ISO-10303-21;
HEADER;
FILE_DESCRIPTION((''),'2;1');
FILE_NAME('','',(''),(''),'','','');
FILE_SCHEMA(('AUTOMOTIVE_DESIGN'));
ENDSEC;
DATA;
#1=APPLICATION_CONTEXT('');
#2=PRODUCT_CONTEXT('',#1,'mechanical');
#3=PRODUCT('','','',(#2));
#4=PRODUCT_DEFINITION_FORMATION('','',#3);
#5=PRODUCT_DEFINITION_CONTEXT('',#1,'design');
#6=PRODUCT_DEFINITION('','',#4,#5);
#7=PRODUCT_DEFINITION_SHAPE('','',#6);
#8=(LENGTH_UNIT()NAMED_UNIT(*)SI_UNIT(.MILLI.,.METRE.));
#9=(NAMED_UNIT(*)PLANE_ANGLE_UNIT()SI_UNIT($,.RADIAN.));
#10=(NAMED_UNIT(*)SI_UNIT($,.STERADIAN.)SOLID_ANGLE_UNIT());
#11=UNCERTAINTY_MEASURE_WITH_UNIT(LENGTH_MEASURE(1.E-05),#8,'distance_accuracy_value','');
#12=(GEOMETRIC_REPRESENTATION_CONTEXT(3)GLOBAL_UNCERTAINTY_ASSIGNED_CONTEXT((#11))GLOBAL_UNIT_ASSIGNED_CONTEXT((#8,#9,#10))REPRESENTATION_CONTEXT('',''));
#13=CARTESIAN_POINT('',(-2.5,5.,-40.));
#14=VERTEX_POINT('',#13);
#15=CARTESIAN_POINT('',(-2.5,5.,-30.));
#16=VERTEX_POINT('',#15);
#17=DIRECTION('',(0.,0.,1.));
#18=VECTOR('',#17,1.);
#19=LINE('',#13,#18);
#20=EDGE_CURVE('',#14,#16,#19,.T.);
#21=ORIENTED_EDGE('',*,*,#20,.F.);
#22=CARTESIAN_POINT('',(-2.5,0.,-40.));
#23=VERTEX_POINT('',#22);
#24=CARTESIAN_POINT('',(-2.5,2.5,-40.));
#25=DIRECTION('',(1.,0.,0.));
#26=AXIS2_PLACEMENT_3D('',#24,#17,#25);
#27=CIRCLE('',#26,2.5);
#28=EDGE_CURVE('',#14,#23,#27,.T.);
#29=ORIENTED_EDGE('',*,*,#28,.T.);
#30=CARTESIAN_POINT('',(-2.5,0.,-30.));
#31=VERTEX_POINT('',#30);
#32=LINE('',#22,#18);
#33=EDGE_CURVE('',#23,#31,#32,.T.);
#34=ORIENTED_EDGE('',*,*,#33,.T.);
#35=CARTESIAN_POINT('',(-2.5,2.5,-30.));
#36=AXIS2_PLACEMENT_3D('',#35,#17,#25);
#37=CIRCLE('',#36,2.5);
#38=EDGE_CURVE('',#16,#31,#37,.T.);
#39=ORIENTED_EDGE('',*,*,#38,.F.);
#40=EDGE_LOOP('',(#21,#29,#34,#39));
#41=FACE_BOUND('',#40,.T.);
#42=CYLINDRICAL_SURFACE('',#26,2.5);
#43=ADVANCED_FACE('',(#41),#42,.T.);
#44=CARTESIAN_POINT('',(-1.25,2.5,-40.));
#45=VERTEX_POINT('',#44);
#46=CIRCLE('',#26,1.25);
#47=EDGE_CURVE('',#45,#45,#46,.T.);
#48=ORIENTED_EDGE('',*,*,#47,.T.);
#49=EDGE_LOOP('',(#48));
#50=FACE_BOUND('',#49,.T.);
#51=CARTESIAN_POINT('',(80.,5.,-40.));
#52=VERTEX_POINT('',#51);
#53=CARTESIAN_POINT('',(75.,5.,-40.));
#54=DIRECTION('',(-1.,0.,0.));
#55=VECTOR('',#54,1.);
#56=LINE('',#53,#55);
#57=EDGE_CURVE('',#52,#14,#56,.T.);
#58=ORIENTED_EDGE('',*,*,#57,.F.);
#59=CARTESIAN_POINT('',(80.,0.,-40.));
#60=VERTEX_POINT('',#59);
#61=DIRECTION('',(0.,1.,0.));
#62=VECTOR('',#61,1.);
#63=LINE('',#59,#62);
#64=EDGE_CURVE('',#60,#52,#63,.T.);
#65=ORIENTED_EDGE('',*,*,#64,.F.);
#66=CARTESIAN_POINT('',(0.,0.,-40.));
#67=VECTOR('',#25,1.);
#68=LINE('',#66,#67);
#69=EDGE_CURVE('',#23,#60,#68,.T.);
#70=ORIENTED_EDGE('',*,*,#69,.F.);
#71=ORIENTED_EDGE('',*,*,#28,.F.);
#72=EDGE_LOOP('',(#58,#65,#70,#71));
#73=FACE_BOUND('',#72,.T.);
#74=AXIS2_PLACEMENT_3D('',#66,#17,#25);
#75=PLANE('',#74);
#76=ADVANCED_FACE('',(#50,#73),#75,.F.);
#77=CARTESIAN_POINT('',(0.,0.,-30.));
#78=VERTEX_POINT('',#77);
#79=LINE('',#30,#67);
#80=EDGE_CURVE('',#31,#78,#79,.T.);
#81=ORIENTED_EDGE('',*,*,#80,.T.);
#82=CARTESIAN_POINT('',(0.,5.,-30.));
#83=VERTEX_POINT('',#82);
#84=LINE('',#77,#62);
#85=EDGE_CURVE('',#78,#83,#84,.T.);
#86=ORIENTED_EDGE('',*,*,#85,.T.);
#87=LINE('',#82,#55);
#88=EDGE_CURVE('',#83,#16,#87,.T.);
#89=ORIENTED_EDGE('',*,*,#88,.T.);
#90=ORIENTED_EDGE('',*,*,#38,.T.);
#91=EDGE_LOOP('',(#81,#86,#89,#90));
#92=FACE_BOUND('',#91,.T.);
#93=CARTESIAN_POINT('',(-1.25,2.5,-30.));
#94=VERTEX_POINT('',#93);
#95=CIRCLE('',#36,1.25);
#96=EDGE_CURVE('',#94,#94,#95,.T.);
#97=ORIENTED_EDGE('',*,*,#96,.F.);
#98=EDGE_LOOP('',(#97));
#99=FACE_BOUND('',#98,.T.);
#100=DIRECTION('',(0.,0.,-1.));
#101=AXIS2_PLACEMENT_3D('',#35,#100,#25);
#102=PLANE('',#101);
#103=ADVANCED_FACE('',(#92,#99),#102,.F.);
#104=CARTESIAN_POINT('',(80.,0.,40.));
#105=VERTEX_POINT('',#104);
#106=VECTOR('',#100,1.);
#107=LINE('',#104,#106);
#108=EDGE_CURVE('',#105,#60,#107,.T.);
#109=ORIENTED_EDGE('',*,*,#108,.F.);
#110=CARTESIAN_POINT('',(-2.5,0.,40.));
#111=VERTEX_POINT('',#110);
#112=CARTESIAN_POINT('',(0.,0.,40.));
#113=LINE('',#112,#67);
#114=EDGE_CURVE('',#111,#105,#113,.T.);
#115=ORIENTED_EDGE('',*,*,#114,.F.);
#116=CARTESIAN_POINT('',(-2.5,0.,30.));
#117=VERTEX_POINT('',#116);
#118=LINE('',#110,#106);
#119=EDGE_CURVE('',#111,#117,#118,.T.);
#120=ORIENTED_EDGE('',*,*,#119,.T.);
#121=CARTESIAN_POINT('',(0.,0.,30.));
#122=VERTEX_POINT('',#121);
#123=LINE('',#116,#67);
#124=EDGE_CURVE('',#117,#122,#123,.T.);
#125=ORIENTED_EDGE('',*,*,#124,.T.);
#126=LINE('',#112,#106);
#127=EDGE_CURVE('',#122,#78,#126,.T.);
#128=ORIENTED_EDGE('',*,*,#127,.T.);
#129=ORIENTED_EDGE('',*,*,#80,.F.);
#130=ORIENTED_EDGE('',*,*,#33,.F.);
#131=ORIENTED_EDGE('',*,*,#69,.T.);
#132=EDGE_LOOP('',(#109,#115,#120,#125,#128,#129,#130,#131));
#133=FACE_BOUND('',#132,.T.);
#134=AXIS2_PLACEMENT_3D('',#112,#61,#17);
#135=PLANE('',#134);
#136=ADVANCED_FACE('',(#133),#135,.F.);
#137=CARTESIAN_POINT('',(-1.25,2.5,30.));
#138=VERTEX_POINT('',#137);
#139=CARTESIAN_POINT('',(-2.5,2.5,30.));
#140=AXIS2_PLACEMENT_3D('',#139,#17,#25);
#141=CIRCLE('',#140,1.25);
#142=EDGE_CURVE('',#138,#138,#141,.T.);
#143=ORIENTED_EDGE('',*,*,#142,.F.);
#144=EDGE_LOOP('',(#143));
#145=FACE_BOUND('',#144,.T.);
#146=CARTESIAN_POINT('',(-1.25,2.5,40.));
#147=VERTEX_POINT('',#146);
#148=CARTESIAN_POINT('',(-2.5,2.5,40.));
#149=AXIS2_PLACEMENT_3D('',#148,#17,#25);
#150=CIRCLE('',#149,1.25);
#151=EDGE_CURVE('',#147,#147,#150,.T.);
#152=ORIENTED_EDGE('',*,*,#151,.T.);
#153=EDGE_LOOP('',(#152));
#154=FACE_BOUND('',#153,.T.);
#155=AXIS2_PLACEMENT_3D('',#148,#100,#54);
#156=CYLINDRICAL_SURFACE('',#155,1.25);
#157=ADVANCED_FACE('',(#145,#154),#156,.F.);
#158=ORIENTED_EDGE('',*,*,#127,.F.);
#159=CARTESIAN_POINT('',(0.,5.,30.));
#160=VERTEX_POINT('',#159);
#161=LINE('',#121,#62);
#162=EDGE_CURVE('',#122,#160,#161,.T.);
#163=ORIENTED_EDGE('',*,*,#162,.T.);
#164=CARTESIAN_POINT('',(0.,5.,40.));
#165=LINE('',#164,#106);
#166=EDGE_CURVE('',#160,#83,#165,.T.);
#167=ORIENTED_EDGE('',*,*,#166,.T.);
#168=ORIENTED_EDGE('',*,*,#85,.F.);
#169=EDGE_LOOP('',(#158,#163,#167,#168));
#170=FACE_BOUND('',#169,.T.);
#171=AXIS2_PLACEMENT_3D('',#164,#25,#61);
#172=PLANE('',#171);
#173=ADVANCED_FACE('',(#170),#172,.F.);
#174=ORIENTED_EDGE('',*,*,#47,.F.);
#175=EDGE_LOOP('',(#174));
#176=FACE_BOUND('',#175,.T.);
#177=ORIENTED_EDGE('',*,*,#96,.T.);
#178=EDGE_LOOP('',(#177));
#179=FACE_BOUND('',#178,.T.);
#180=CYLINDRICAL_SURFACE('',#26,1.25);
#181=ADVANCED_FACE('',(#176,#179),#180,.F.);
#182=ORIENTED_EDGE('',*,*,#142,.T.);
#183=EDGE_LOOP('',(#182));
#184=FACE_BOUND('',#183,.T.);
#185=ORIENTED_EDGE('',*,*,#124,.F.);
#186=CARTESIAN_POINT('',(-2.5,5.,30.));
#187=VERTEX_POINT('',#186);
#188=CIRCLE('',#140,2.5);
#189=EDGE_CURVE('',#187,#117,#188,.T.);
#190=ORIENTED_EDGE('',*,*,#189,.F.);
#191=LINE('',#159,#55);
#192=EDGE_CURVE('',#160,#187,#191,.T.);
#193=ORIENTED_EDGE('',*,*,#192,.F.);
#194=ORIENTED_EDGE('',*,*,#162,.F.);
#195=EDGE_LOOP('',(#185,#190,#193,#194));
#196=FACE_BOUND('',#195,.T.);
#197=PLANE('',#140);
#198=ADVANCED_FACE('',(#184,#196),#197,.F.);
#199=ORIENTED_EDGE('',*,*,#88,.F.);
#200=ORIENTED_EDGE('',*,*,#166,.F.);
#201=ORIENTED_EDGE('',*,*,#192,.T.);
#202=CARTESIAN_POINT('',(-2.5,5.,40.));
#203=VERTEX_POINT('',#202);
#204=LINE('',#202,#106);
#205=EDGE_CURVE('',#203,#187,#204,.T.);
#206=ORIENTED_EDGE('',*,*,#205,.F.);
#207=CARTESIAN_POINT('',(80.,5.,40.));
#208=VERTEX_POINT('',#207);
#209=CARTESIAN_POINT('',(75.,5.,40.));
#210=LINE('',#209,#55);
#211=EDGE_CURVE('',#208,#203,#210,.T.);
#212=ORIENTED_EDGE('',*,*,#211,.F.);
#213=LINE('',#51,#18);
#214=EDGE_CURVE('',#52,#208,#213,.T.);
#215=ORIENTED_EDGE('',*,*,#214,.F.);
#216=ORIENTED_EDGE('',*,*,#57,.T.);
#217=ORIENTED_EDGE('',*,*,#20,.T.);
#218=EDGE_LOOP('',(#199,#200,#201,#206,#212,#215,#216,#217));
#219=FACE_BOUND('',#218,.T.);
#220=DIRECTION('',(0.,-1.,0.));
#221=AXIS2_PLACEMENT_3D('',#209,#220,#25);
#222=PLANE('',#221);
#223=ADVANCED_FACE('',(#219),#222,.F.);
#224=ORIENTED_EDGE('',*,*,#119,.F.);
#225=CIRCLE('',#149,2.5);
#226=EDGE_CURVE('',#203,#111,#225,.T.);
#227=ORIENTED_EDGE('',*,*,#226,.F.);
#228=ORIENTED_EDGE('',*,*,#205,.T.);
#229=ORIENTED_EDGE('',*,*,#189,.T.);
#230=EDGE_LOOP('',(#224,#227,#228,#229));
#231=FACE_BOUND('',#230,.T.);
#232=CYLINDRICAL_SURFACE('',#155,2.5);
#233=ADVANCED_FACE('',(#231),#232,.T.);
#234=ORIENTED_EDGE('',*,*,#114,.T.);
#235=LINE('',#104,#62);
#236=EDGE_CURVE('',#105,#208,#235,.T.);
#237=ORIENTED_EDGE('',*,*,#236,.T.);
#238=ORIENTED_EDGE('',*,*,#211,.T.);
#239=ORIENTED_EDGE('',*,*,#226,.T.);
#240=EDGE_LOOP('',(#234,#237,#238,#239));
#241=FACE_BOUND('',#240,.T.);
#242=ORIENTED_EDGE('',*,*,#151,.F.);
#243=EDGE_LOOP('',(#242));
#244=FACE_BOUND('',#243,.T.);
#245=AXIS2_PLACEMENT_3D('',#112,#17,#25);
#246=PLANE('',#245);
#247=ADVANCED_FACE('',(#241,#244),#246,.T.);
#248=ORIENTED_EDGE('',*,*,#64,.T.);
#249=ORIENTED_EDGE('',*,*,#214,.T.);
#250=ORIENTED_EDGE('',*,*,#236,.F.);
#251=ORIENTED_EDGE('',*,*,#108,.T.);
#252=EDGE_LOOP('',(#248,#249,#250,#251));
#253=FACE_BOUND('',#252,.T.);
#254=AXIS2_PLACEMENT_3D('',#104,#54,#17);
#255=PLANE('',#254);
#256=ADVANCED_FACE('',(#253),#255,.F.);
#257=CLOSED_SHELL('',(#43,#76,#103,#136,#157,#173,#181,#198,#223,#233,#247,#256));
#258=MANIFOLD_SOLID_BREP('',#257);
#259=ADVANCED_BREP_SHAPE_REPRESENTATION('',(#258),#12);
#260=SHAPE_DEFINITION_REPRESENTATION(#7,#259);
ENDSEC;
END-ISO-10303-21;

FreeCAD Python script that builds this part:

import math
import FreeCAD as App
import Part
import Sketcher
Q = App.Units.Quantity


def add_polygon(sketch, points):
    """Adds a closed chain of lines whose ends are joined by coincident constraints."""
    first, n = sketch.GeometryCount, len(points)
    for a, b in zip(points, points[1:] + points[:1]):
        sketch.addGeometry(Part.LineSegment(App.Vector(*a, 0), App.Vector(*b, 0)), False)
    for i in range(n):
        sketch.addConstraint(Sketcher.Constraint("Coincident", first + i, 2, first + (i + 1) % n, 1))

doc = App.newDocument("Part")
body = doc.addObject("PartDesign::Body", "Body")

# Sketch on XY plane
sketch1 = doc.addObject("Sketcher::SketchObject", "Sketch")
body.addObject(sketch1)
sketch1.AttachmentSupport = (doc.XY_Plane, [""])
sketch1.MapMode = "FlatFace"
add_polygon(sketch1, [(0, 0), (80, 0), (80, 10), (75, 10), (75, 5), (0, 5)])  # lines 0-5
sketch1.addConstraint(Sketcher.Constraint("Horizontal", 0))
sketch1.addConstraint(Sketcher.Constraint("Vertical", 1))
sketch1.addConstraint(Sketcher.Constraint("Horizontal", 2))
sketch1.addConstraint(Sketcher.Constraint("Vertical", 3))
sketch1.addConstraint(Sketcher.Constraint("Horizontal", 4))
sketch1.addConstraint(Sketcher.Constraint("Vertical", 5))
sketch1.addConstraint(Sketcher.Constraint("Coincident", 5, 2, -1, 1))
sketch1.addConstraint(Sketcher.Constraint("Equal", 2, 3))
sketch1.addConstraint(Sketcher.Constraint("Equal", 3, 5))
sketch1.addConstraint(Sketcher.Constraint("DistanceX", 0, 1, 0, 2, Q("80 mm")))
sketch1.addConstraint(Sketcher.Constraint("DistanceX", 2, 2, 2, 1, Q("5 mm")))
pad1 = doc.addObject("PartDesign::Pad", "Pad")
body.addObject(pad1)
pad1.Profile = sketch1
pad1.Length = 80
pad1.Midplane = True

# Sketch on XY plane
sketch2 = doc.addObject("Sketcher::SketchObject", "Sketch001")
body.addObject(sketch2)
sketch2.AttachmentSupport = (doc.XY_Plane, [""])
sketch2.MapMode = "FlatFace"
sketch2.AttachmentOffset = App.Placement(App.Vector(0, 0, 30), App.Rotation())
sketch2.addGeometry(Part.LineSegment(App.Vector(0, 5, 0), App.Vector(-2.5, 5, 0)), False)
sketch2.addGeometry(Part.ArcOfCircle(Part.Circle(App.Vector(-2.5, 2.5, 0), App.Vector(0, 0, 1), 2.5), math.radians(90), math.radians(270)), False)
sketch2.addGeometry(Part.LineSegment(App.Vector(-2.5, 0, 0), App.Vector(0, 0, 0)), False)
sketch2.addGeometry(Part.LineSegment(App.Vector(0, 0, 0), App.Vector(0, 5, 0)), False)
sketch2.addGeometry(Part.Circle(App.Vector(-2.5, 2.5, 0), App.Vector(0, 0, 1), 1.2), False)
sketch2.addConstraint(Sketcher.Constraint("Tangent", 0, 2, 1, 1))
sketch2.addConstraint(Sketcher.Constraint("Tangent", 1, 2, 2, 1))
sketch2.addConstraint(Sketcher.Constraint("Coincident", 2, 2, 3, 1))
sketch2.addConstraint(Sketcher.Constraint("Coincident", 3, 2, 0, 1))
sketch2.addConstraint(Sketcher.Constraint("Horizontal", 0))
sketch2.addConstraint(Sketcher.Constraint("Horizontal", 2))
sketch2.addConstraint(Sketcher.Constraint("Vertical", 3))
sketch2.addConstraint(Sketcher.Constraint("Coincident", 2, 2, -1, 1))
sketch2.addConstraint(Sketcher.Constraint("Coincident", 4, 3, 1, 3))
sketch2.addConstraint(Sketcher.Constraint("Diameter", 4, Q("2.5 mm")))
sketch2.addConstraint(Sketcher.Constraint("Radius", 1, Q("2.5 mm")))
sketch2.addConstraint(Sketcher.Constraint("DistanceX", 0, 2, 0, 1, Q("2.5 mm")))
pad2 = doc.addObject("PartDesign::Pad", "Pad001")
body.addObject(pad2)
pad2.Profile = sketch2
pad2.Length = 10
doc.recompute()

mirrored = doc.addObject("PartDesign::Mirrored", "Mirrored")
body.addObject(mirrored)
mirrored.Originals = [pad2]
mirrored.MirrorPlane = (doc.XY_Plane, [""])
body.Tip = mirrored

# Sketch on XY plane
sketch3 = doc.addObject("Sketcher::SketchObject", "Sketch002")
body.addObject(sketch3)
sketch3.AttachmentSupport = (doc.XY_Plane, [""])
sketch3.MapMode = "FlatFace"
add_polygon(sketch3, [(75, 10), (75, 5), (80, 5), (80, 10)])  # lines 0-3
sketch3.addConstraint(Sketcher.Constraint("Vertical", 0))
sketch3.addConstraint(Sketcher.Constraint("Horizontal", 1))
sketch3.addConstraint(Sketcher.Constraint("Vertical", 2))
sketch3.addConstraint(Sketcher.Constraint("Horizontal", 3))
sketch3.addConstraint(Sketcher.Constraint("Equal", 3, 0))
sketch3.addConstraint(Sketcher.Constraint("DistanceX", 1, 1, 1, 2, Q("5 mm")))
sketch3.addConstraint(Sketcher.Constraint("DistanceX", -1, 1, 0, 2, Q("75 mm")))
sketch3.addConstraint(Sketcher.Constraint("DistanceY", -1, 1, 0, 2, Q("5 mm")))
pocket1 = doc.addObject("PartDesign::Pocket", "Pocket")
body.addObject(pocket1)
pocket1.Profile = sketch3
pocket1.Type = "ThroughAll"
pocket1.Midplane = True

doc.recompute()
